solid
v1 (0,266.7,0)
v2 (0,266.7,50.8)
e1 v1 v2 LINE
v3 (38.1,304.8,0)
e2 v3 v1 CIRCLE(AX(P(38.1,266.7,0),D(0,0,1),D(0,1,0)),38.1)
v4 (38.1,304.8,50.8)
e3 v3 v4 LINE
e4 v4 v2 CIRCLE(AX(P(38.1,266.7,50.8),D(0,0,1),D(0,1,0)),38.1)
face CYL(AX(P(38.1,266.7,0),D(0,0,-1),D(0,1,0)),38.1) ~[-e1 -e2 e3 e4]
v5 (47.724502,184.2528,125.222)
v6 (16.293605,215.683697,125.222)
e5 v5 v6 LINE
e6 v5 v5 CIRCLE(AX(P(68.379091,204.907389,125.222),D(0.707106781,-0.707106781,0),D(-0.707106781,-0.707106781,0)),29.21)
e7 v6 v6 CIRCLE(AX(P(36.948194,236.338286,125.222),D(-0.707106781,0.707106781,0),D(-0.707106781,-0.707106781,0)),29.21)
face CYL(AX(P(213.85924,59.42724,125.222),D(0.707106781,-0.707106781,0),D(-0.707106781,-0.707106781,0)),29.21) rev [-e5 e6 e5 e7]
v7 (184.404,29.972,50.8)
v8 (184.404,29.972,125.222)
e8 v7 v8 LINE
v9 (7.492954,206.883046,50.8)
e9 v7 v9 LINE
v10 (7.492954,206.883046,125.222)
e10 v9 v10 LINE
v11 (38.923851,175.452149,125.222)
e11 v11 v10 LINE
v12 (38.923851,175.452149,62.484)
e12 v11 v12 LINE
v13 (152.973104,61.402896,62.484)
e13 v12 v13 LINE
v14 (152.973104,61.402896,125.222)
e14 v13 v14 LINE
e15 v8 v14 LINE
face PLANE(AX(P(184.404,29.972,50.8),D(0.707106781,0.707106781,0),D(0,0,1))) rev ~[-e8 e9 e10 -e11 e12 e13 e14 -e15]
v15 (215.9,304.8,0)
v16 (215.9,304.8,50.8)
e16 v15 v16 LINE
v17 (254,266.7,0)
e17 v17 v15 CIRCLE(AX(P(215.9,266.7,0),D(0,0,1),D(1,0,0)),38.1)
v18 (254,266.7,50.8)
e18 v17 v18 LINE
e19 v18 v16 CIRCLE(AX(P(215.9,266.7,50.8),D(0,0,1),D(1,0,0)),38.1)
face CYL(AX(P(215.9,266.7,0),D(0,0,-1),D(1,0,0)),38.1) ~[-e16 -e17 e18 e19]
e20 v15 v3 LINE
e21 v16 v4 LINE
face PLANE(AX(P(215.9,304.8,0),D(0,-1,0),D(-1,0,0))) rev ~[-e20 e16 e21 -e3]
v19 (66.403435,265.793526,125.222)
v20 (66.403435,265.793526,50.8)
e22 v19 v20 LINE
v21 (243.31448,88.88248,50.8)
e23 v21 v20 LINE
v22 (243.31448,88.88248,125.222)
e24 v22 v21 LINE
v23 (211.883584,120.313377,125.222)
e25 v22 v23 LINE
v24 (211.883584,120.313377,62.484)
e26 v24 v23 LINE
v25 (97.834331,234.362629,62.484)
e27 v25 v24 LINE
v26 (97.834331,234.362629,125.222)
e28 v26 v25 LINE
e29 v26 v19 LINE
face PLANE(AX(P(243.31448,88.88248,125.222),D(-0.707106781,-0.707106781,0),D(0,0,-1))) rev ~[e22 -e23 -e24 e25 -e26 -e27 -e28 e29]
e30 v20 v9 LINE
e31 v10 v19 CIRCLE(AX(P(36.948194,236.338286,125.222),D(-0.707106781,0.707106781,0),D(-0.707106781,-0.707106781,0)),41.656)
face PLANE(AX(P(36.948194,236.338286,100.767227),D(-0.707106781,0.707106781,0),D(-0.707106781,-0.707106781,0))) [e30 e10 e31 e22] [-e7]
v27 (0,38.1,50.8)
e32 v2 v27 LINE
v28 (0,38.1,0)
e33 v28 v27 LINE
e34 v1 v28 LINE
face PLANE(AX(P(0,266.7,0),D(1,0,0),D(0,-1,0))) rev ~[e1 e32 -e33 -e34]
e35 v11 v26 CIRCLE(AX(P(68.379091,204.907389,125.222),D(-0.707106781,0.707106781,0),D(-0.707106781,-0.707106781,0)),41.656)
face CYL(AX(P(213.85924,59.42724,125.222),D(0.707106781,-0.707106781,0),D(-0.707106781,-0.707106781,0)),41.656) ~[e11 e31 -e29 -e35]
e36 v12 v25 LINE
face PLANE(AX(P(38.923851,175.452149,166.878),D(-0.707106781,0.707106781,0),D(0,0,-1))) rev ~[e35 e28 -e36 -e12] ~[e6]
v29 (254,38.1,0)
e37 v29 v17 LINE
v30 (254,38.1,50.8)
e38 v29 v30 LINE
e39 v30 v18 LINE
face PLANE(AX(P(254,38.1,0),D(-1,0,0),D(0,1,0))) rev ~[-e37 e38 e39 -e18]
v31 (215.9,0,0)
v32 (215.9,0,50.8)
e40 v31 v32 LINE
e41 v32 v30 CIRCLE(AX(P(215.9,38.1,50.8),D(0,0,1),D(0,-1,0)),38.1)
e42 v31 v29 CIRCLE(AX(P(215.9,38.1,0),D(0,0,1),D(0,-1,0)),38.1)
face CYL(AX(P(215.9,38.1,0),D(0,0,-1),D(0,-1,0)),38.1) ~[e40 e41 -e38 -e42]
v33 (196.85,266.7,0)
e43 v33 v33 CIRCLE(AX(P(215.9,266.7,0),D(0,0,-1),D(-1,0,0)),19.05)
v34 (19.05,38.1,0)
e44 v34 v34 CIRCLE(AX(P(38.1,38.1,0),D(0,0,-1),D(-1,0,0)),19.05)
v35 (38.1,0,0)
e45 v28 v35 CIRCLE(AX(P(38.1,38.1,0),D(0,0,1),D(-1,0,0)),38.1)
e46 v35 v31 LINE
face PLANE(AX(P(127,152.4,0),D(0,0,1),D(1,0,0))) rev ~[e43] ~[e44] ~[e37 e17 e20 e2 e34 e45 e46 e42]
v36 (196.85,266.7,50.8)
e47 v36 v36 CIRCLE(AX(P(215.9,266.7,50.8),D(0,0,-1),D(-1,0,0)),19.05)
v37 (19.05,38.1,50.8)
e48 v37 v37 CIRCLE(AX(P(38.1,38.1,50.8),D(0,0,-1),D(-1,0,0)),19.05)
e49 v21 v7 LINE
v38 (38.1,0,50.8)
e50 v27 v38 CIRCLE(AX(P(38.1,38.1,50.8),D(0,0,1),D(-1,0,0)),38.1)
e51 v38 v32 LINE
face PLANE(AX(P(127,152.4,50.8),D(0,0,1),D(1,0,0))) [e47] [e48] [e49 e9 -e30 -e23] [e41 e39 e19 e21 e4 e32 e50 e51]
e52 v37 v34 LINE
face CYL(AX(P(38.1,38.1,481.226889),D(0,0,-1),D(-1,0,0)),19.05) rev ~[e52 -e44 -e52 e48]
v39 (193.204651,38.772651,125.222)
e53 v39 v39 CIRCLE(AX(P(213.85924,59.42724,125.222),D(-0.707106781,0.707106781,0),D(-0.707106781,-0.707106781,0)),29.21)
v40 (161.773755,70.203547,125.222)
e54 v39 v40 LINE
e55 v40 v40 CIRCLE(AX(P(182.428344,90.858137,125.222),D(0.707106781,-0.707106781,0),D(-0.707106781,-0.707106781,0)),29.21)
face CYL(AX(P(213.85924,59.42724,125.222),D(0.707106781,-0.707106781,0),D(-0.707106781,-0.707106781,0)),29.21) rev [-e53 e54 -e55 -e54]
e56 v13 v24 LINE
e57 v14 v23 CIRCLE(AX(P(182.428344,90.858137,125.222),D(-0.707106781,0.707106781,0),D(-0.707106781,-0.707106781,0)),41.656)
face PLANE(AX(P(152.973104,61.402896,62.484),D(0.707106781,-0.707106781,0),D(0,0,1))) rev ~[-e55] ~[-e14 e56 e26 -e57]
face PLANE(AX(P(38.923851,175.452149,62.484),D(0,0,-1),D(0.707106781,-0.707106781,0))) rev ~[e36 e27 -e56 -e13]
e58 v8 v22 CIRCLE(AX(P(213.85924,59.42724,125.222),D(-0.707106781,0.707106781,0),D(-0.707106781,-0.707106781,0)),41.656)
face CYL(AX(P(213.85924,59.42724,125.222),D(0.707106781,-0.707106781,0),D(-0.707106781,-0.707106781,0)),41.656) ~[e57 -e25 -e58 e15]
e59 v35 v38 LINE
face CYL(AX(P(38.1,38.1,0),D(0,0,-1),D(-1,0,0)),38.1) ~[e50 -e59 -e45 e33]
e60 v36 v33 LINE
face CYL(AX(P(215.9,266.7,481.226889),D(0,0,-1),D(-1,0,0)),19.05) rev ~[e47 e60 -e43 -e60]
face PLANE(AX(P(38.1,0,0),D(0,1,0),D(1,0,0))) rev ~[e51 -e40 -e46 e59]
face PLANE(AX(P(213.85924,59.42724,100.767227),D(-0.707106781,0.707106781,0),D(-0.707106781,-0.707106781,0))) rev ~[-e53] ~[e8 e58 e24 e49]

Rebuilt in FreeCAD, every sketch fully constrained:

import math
import FreeCAD as App
import Part
import Sketcher

V = App.Vector
Q = App.Units.Quantity

doc = App.newDocument("Part")
body = doc.addObject("PartDesign::Body", "Body")

# Sketch on XY plane
sketch1 = body.newObject("Sketcher::SketchObject", "Sketch")
sketch1.AttachmentSupport = (doc.getObject("XY_Plane"), [""])
sketch1.MapMode = "FlatFace"
sketch1.addGeometry(Part.ArcOfCircle(Part.Circle(V(38, 38, 0), V(0, 0, 1), 38), math.radians(180), math.radians(270)), False)
sketch1.addGeometry(Part.LineSegment(V(38, 0, 0), V(216, 0, 0)), False)
sketch1.addGeometry(Part.ArcOfCircle(Part.Circle(V(216, 38, 0), V(0, 0, 1), 38), math.radians(-90), math.radians(0)), False)
sketch1.addGeometry(Part.LineSegment(V(254, 38, 0), V(254, 267, 0)), False)
sketch1.addGeometry(Part.ArcOfCircle(Part.Circle(V(216, 267, 0), V(0, 0, 1), 38), math.radians(0), math.radians(90)), False)
sketch1.addGeometry(Part.LineSegment(V(216, 305, 0), V(38, 305, 0)), False)
sketch1.addGeometry(Part.ArcOfCircle(Part.Circle(V(38, 267, 0), V(0, 0, 1), 38), math.radians(90), math.radians(180)), False)
sketch1.addGeometry(Part.LineSegment(V(0, 267, 0), V(0, 38, 0)), False)
sketch1.addConstraint(Sketcher.Constraint("Tangent", 0, 2, 1, 1))
sketch1.addConstraint(Sketcher.Constraint("Tangent", 1, 2, 2, 1))
sketch1.addConstraint(Sketcher.Constraint("Tangent", 2, 2, 3, 1))
sketch1.addConstraint(Sketcher.Constraint("Tangent", 3, 2, 4, 1))
sketch1.addConstraint(Sketcher.Constraint("Tangent", 4, 2, 5, 1))
sketch1.addConstraint(Sketcher.Constraint("Tangent", 5, 2, 6, 1))
sketch1.addConstraint(Sketcher.Constraint("Tangent", 6, 2, 7, 1))
sketch1.addConstraint(Sketcher.Constraint("Tangent", 7, 2, 0, 1))
sketch1.addConstraint(Sketcher.Constraint("Horizontal", 1))
sketch1.addConstraint(Sketcher.Constraint("Vertical", 3))
sketch1.addConstraint(Sketcher.Constraint("Horizontal", 5))
sketch1.addConstraint(Sketcher.Constraint("Vertical", 7))
sketch1.addConstraint(Sketcher.Constraint("Equal", 0, 2))
sketch1.addConstraint(Sketcher.Constraint("Equal", 2, 4))
sketch1.addConstraint(Sketcher.Constraint("Equal", 4, 6))
sketch1.addConstraint(Sketcher.Constraint("PointOnObject", 0, 2, -1))
sketch1.addConstraint(Sketcher.Constraint("PointOnObject", 6, 2, -2))
sketch1.addConstraint(Sketcher.Constraint("Radius", 0, Q("1.5 in")))
sketch1.addConstraint(Sketcher.Constraint("DistanceX", 1, 1, 1, 2, Q("7 in")))
sketch1.addConstraint(Sketcher.Constraint("DistanceY", 3, 1, 3, 2, Q("9 in")))
pad1 = body.newObject("PartDesign::Pad", "Pad")
pad1.Profile = sketch1
pad1.Length = Q("2 in")

# Sketch on an angled plane
sketch2 = body.newObject("Sketcher::SketchObject", "Sketch001")
sketch2.Placement = App.Placement(V(77.216, -77.216, 0), App.Rotation(V(-0.707106781, -0.707106781, 0), V(0, 0, 0.999999999), V(-0.707106781, 0.707106781, 0), "ZXY"))
sketch2.addGeometry(Part.LineSegment(V(-235, 125, 0), V(-235, 51, 0)), False)
sketch2.addGeometry(Part.LineSegment(V(-235, 51, 0), V(-152, 51, 0)), False)
sketch2.addGeometry(Part.LineSegment(V(-152, 51, 0), V(-152, 125, 0)), False)
sketch2.addGeometry(Part.ArcOfCircle(Part.Circle(V(-193, 125, 0), V(0, 0, 1), 42), math.radians(0), math.radians(180)), False)
sketch2.addGeometry(Part.Circle(V(-193, 125, 0), V(0, 0, 1), 29), False)
sketch2.addConstraint(Sketcher.Constraint("Coincident", 0, 2, 1, 1))
sketch2.addConstraint(Sketcher.Constraint("Coincident", 1, 2, 2, 1))
sketch2.addConstraint(Sketcher.Constraint("Tangent", 2, 2, 3, 1))
sketch2.addConstraint(Sketcher.Constraint("Tangent", 3, 2, 0, 1))
sketch2.addConstraint(Sketcher.Constraint("Vertical", 0))
sketch2.addConstraint(Sketcher.Constraint("Horizontal", 1))
sketch2.addConstraint(Sketcher.Constraint("Vertical", 2))
sketch2.addConstraint(Sketcher.Constraint("Coincident", 4, 3, 3, 3))
sketch2.addConstraint(Sketcher.Constraint("Diameter", 4, Q("2.3 in")))
sketch2.addConstraint(Sketcher.Constraint("Radius", 3, Q("1.64 in")))
sketch2.addConstraint(Sketcher.Constraint("DistanceY", -1, 1, 0, 2, Q("2 in")))
sketch2.addConstraint(Sketcher.Constraint("DistanceY", 0, 2, 0, 1, Q("2.93 in")))
sketch2.addConstraint(Sketcher.Constraint("DistanceX", 3, 3, -1, 1, Q("193.242723 mm")))
pad2 = body.newObject("PartDesign::Pad", "Pad001")
pad2.Profile = sketch2
pad2.Length = Q("9.85 in")

# Sketch on an angled plane
sketch3 = body.newObject("Sketcher::SketchObject", "Sketch002")
sketch3.Placement = App.Placement(V(107.188, 107.188, 0), App.Rotation(V(0.707106781, -0.707106781, 0), V(0, 0, 0.999999999), V(-0.707106781, -0.707106781, 0), "ZXY"))
sketch3.addGeometry(Part.LineSegment(V(-97, 167, 0), V(-97, 62, 0)), False)
sketch3.addGeometry(Part.LineSegment(V(-97, 62, 0), V(65, 62, 0)), False)
sketch3.addGeometry(Part.LineSegment(V(65, 62, 0), V(65, 167, 0)), False)
sketch3.addGeometry(Part.LineSegment(V(65, 167, 0), V(-97, 167, 0)), False)
sketch3.addConstraint(Sketcher.Constraint("Coincident", 0, 2, 1, 1))
sketch3.addConstraint(Sketcher.Constraint("Coincident", 1, 2, 2, 1))
sketch3.addConstraint(Sketcher.Constraint("Coincident", 2, 2, 3, 1))
sketch3.addConstraint(Sketcher.Constraint("Coincident", 3, 2, 0, 1))
sketch3.addConstraint(Sketcher.Constraint("Vertical", 0))
sketch3.addConstraint(Sketcher.Constraint("Horizontal", 1))
sketch3.addConstraint(Sketcher.Constraint("Vertical", 2))
sketch3.addConstraint(Sketcher.Constraint("Horizontal", 3))
sketch3.addConstraint(Sketcher.Constraint("DistanceX", 1, 1, 1, 2, Q("6.35 in")))
sketch3.addConstraint(Sketcher.Constraint("DistanceY", 0, 2, 0, 1, Q("4.11 in")))
sketch3.addConstraint(Sketcher.Constraint("DistanceY", -1, 1, 0, 2, Q("2.46 in")))
sketch3.addConstraint(Sketcher.Constraint("DistanceX", 0, 2, -1, 1, Q("96.540086 mm")))
pocket1 = body.newObject("PartDesign::Pocket", "Pocket")
pocket1.Profile = sketch3
pocket1.Type = "ThroughAll"

# Sketch on XY plane
sketch4 = body.newObject("Sketcher::SketchObject", "Sketch003")
sketch4.AttachmentSupport = (doc.getObject("XY_Plane"), [""])
sketch4.MapMode = "FlatFace"
sketch4.AttachmentOffset = App.Placement(V(0, 0, 2 * 25.4), App.Rotation())
sketch4.addGeometry(Part.Circle(V(38, 38, 0), V(0, 0, 1), 19), False)
sketch4.addGeometry(Part.Circle(V(216, 267, 0), V(0, 0, 1), 19), False)
sketch4.addConstraint(Sketcher.Constraint("Equal", 0, 1))
sketch4.addConstraint(Sketcher.Constraint("Diameter", 0, Q("1.5 in")))
sketch4.addConstraint(Sketcher.Constraint("DistanceX", 0, 3, 1, 3, Q("7 in")))
sketch4.addConstraint(Sketcher.Constraint("DistanceY", 0, 3, 1, 3, Q("9 in")))
sketch4.addConstraint(Sketcher.Constraint("DistanceX", -1, 1, 0, 3, Q("1.5 in")))
sketch4.addConstraint(Sketcher.Constraint("DistanceY", -1, 1, 0, 3, Q("1.5 in")))
doc.recompute()
hole = body.newObject("PartDesign::Hole", "Hole")
hole.Profile = sketch4
hole.ThreadType = "None"
hole.Diameter = Q("1.5 in")
hole.DepthType = "ThroughAll"

doc.recompute()
